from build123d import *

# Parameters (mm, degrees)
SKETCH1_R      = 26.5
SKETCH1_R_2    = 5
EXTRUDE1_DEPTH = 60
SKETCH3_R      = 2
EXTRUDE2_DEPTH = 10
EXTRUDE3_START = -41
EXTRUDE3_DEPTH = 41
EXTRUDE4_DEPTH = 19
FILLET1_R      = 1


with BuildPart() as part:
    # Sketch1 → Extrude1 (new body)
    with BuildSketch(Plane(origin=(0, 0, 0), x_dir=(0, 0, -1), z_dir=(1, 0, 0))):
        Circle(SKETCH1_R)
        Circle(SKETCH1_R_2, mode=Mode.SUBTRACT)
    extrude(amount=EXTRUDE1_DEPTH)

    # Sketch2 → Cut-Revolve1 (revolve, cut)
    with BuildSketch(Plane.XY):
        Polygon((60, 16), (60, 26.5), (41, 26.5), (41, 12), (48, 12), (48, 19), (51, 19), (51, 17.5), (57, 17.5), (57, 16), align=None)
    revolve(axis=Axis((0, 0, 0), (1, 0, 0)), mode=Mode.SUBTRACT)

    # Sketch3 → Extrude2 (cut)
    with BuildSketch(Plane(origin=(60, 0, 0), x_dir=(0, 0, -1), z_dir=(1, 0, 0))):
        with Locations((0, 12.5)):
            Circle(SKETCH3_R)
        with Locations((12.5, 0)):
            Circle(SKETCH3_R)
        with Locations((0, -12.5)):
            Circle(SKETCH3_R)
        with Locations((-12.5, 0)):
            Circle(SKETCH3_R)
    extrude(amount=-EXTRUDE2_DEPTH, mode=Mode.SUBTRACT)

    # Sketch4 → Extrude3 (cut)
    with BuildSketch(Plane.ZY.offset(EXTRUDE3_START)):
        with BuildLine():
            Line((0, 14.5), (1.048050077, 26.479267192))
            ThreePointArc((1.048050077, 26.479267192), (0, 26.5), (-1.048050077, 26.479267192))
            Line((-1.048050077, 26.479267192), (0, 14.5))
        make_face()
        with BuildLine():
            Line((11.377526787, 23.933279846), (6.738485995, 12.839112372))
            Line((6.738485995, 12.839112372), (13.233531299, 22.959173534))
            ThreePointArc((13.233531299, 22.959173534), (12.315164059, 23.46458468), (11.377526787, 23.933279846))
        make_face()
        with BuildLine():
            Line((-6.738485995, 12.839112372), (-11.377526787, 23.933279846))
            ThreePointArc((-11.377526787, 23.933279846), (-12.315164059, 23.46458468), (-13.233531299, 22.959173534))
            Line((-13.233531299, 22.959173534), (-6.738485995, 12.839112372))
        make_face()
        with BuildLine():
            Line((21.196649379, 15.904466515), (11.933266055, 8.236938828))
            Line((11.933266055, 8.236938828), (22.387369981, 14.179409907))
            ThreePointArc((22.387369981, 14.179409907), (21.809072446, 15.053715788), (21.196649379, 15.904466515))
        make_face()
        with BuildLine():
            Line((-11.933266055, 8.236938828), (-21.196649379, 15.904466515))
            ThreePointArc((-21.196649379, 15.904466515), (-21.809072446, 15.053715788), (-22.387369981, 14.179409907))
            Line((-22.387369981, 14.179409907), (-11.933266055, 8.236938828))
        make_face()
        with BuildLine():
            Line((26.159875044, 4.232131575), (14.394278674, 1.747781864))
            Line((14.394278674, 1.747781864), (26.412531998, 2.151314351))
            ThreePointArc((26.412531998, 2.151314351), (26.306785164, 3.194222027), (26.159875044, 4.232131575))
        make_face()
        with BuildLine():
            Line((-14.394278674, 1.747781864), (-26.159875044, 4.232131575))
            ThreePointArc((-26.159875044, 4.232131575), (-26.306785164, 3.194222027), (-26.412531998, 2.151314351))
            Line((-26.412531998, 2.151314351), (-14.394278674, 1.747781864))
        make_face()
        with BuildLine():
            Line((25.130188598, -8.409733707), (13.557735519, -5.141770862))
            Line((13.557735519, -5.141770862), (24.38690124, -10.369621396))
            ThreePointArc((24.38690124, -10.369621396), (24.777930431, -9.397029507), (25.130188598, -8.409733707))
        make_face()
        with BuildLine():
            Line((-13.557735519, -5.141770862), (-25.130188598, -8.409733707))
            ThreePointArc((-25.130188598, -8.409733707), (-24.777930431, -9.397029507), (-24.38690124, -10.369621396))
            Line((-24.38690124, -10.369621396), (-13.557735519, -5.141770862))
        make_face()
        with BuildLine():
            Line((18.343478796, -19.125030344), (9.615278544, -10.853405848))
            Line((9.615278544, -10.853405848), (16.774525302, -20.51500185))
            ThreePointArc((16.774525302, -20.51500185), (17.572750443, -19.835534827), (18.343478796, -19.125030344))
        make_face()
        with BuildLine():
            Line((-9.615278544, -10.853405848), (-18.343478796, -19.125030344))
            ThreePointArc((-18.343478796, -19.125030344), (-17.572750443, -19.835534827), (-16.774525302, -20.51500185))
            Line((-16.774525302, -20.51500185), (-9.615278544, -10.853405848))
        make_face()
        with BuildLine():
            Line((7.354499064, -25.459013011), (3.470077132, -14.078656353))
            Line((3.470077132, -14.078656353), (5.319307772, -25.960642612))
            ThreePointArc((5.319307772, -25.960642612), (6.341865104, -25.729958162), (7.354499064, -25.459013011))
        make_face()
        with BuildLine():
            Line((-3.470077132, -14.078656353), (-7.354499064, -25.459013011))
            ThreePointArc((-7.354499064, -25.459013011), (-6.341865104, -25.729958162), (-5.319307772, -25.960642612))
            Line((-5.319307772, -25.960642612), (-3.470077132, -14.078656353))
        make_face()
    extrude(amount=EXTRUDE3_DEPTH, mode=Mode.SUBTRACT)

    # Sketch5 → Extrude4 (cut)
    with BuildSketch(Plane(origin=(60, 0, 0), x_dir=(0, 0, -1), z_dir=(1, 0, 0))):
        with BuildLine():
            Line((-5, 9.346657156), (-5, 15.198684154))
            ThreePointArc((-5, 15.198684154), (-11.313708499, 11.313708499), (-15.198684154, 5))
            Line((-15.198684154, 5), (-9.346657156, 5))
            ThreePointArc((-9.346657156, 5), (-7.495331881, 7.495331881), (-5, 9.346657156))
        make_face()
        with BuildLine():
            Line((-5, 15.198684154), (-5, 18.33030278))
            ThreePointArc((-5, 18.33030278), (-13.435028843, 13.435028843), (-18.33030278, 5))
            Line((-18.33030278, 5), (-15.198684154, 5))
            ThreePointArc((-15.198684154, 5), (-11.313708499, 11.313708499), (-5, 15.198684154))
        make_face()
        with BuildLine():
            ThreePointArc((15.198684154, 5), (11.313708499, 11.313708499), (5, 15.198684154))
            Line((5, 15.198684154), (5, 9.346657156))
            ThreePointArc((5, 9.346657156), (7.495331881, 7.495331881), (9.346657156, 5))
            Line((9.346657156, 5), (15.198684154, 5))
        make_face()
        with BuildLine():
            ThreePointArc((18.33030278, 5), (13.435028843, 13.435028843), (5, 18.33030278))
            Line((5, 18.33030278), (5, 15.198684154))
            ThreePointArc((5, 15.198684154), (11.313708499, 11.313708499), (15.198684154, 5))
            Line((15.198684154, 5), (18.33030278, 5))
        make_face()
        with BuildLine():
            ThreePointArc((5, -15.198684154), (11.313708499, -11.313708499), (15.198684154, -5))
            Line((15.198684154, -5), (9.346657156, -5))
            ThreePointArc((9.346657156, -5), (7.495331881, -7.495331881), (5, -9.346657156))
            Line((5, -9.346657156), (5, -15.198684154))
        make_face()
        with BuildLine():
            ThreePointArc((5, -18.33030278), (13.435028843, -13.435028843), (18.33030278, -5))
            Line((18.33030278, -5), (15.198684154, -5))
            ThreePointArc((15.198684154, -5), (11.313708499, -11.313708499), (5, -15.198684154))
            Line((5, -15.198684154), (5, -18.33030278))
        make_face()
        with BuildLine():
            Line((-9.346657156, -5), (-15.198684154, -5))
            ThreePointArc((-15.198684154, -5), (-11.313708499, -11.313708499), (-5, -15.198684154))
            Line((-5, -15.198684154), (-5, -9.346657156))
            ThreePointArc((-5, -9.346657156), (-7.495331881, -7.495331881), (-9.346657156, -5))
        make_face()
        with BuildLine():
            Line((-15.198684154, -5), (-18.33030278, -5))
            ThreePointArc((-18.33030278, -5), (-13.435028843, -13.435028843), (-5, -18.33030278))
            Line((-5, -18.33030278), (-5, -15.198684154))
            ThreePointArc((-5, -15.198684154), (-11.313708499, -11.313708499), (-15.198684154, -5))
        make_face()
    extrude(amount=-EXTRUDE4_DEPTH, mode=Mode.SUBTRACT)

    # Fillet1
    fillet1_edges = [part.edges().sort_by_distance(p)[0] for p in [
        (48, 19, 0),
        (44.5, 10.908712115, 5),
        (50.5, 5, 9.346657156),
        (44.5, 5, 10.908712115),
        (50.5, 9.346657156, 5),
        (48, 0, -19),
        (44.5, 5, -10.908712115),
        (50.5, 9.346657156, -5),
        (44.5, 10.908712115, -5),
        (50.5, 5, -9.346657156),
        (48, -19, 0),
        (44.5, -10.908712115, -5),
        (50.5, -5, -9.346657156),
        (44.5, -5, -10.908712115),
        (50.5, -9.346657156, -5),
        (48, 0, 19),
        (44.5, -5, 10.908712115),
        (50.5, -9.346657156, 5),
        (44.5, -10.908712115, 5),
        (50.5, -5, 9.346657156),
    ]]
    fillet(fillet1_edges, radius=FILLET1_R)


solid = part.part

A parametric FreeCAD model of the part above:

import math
import FreeCAD as App
import Part
import Sketcher

V = App.Vector
Q = App.Units.Quantity


def edges_at(feature, points):
    """Names of the edges that pass closest to the given points."""
    edges = feature.Shape.Edges
    near = lambda p: min(range(len(edges)), key=lambda i: edges[i].distToShape(Part.Vertex(*p))[0])
    return sorted({f"Edge{near(p) + 1}" for p in points})

doc = App.newDocument("Part")
params = doc.addObject("Spreadsheet::Sheet", "Params")
for row, (alias, value) in enumerate([
    ("sketch1_diameter", "53 mm"),
    ("sketch1_diameter2", "10 mm"),
    ("pad1_length", "60 mm"),
    ("sketch2_width", "19 mm"),
    ("sketch2_width2", "7 mm"),
    ("sketch2_width3", "3 mm"),
    ("sketch2_height", "10.5 mm"),
    ("sketch2_height2", "14.5 mm"),
    ("groove_angle", "360 deg"),
    ("sketch3_diameter", "4 mm"),
    ("pocket1_length", "10 mm"),
    ("sketch4_radius", "26.5 mm"),
    ("sketch4_radius2", "26.5 mm"),
    ("sketch4_radius3", "26.5 mm"),
    ("sketch4_radius4", "26.5 mm"),
    ("sketch4_radius5", "26.5 mm"),
    ("pocket2_length", "41 mm"),
    ("sketch5_radius", "19 mm"),
    ("sketch5_radius2", "10.6 mm"),
    ("pocket3_length", "19 mm"),
    ("fillet_radius", "1 mm"),
], start=1):
    params.set(f"A{row}", alias)
    params.set(f"B{row}", "=" + value)
    params.setAlias(f"B{row}", alias)

body = doc.addObject("PartDesign::Body", "Body")

sketch1 = body.newObject("Sketcher::SketchObject", "Sketch")
sketch1.AttachmentSupport = (doc.getObject("YZ_Plane"), [""])
sketch1.MapMode = "FlatFace"
sketch1.addGeometry([
    Part.Circle(V(0, 0, 0), V(0, 0, 1), 26.5),
    Part.Circle(V(0, 0, 0), V(0, 0, 1), 5),
], False)
sketch1.addConstraint([
    Sketcher.Constraint("Coincident", 0, 3, -1, 1),
    Sketcher.Constraint("Coincident", 1, 3, -1, 1),
    Sketcher.Constraint("Diameter", 0, Q("53 mm")),
    Sketcher.Constraint("Diameter", 1, Q("10 mm")),
])
sketch1.setExpression("Constraints[2]", "Params.sketch1_diameter")
sketch1.setExpression("Constraints[3]", "Params.sketch1_diameter2")
pad1 = body.newObject("PartDesign::Pad", "Pad")
pad1.Profile = sketch1
pad1.setExpression("Length", "Params.pad1_length")

sketch2 = body.newObject("Sketcher::SketchObject", "Sketch001")
sketch2.AttachmentSupport = (doc.getObject("XY_Plane"), [""])
sketch2.MapMode = "FlatFace"
sketch2.addGeometry([
    Part.LineSegment(V(60, 16, 0), V(60, 26.5, 0)),
    Part.LineSegment(V(60, 26.5, 0), V(41, 26.5, 0)),
    Part.LineSegment(V(41, 26.5, 0), V(41, 12, 0)),
    Part.LineSegment(V(41, 12, 0), V(48, 12, 0)),
    Part.LineSegment(V(48, 12, 0), V(48, 19, 0)),
    Part.LineSegment(V(48, 19, 0), V(51, 19, 0)),
    Part.LineSegment(V(51, 19, 0), V(51, 17.5, 0)),
    Part.LineSegment(V(51, 17.5, 0), V(57, 17.5, 0)),
    Part.LineSegment(V(57, 17.5, 0), V(57, 16, 0)),
    Part.LineSegment(V(57, 16, 0), V(60, 16, 0)),
], False)
sketch2.addConstraint([
    Sketcher.Constraint("Coincident", 0, 2, 1, 1),
    Sketcher.Constraint("Coincident", 1, 2, 2, 1),
    Sketcher.Constraint("Coincident", 2, 2, 3, 1),
    Sketcher.Constraint("Coincident", 3, 2, 4, 1),
    Sketcher.Constraint("Coincident", 4, 2, 5, 1),
    Sketcher.Constraint("Coincident", 5, 2, 6, 1),
    Sketcher.Constraint("Coincident", 6, 2, 7, 1),
    Sketcher.Constraint("Coincident", 7, 2, 8, 1),
    Sketcher.Constraint("Coincident", 8, 2, 9, 1),
    Sketcher.Constraint("Coincident", 9, 2, 0, 1),
    Sketcher.Constraint("Vertical", 0),
    Sketcher.Constraint("Horizontal", 1),
    Sketcher.Constraint("Vertical", 2),
    Sketcher.Constraint("Horizontal", 3),
    Sketcher.Constraint("Vertical", 4),
    Sketcher.Constraint("Horizontal", 5),
    Sketcher.Constraint("Vertical", 6),
    Sketcher.Constraint("Horizontal", 7),
    Sketcher.Constraint("Vertical", 8),
    Sketcher.Constraint("Horizontal", 9),
    Sketcher.Constraint("Equal", 5, 9),
    Sketcher.Constraint("Equal", 3, 4),
    Sketcher.Constraint("Equal", 6, 8),
    Sketcher.Constraint("DistanceX", 1, 2, 1, 1, Q("19 mm")),
    Sketcher.Constraint("DistanceX", 3, 1, 3, 2, Q("7 mm")),
    Sketcher.Constraint("DistanceX", 5, 1, 5, 2, Q("3 mm")),
    Sketcher.Constraint("DistanceY", 0, 1, 0, 2, Q("10.5 mm")),
    Sketcher.Constraint("DistanceY", 2, 2, 2, 1, Q("14.5 mm")),
    Sketcher.Constraint("DistanceX", -1, 1, 0, 2, Q("60 mm")),
    Sketcher.Constraint("DistanceY", -1, 1, 2, 2, Q("12 mm")),
])
sketch2.setExpression("Constraints[23]", "Params.sketch2_width")
sketch2.setExpression("Constraints[24]", "Params.sketch2_width2")
sketch2.setExpression("Constraints[25]", "Params.sketch2_width3")
sketch2.setExpression("Constraints[26]", "Params.sketch2_height")
sketch2.setExpression("Constraints[27]", "Params.sketch2_height2")
groove = body.newObject("PartDesign::Groove", "Groove")
groove.Profile = sketch2
groove.ReferenceAxis = (sketch2, ["H_Axis"])
groove.setExpression("Angle", "Params.groove_angle")

sketch3 = body.newObject("Sketcher::SketchObject", "Sketch002")
sketch3.AttachmentSupport = (doc.getObject("YZ_Plane"), [""])
sketch3.MapMode = "FlatFace"
sketch3.AttachmentOffset = App.Placement(V(0, 0, 60), App.Rotation())
sketch3.addGeometry([
    Part.Circle(V(12.5, 0, 0), V(0, 0, 1), 2),
    Part.Circle(V(0, -12.5, 0), V(0, 0, 1), 2),
    Part.Circle(V(-12.5, 0, 0), V(0, 0, 1), 2),
    Part.Circle(V(0, 12.5, 0), V(0, 0, 1), 2),
], False)
sketch3.addConstraint([
    Sketcher.Constraint("Equal", 0, 1),
    Sketcher.Constraint("Equal", 1, 2),
    Sketcher.Constraint("Equal", 2, 3),
    Sketcher.Constraint("Symmetric", 0, 3, 2, 3, -1, 1),
    Sketcher.Constraint("Symmetric", 1, 3, 3, 3, -1, 1),
    Sketcher.Constraint("PointOnObject", 0, 3, -1),
    Sketcher.Constraint("PointOnObject", 1, 3, -2),
    Sketcher.Constraint("Diameter", 0, Q("4 mm")),
    Sketcher.Constraint("DistanceX", 2, 3, 0, 3, Q("25 mm")),
    Sketcher.Constraint("DistanceY", 1, 3, 3, 3, Q("25 mm")),
])
sketch3.setExpression("Constraints[7]", "Params.sketch3_diameter")
pocket1 = body.newObject("PartDesign::Pocket", "Pocket")
pocket1.Profile = sketch3
pocket1.setExpression("Length", "Params.pocket1_length")

sketch4 = body.newObject("Sketcher::SketchObject", "Sketch003")
sketch4.AttachmentSupport = (doc.getObject("YZ_Plane"), [""])
sketch4.MapMode = "FlatFace"
sketch4.AttachmentOffset = App.Placement(V(0, 0, 41), App.Rotation())
sketch4.addGeometry([
    Part.LineSegment(V(14.5, 0, 0), V(26.479267, 1.04805, 0)),
    Part.ArcOfCircle(Part.Circle(V(0, 0, 0), V(0, 0, 1), 26.5), math.radians(-2.266585), math.radians(2.266585)),
    Part.LineSegment(V(26.479267, -1.04805, 0), V(14.5, 0, 0)),
    Part.LineSegment(V(23.93328, 11.377527, 0), V(12.839112, 6.738486, 0)),
    Part.LineSegment(V(12.839112, 6.738486, 0), V(22.959174, 13.233531, 0)),
    Part.ArcOfCircle(Part.Circle(V(0, 0, 0), V(0, 0, 1), 26.5), math.radians(25.425722), math.radians(29.958893)),
    Part.LineSegment(V(12.839112, -6.738486, 0), V(23.93328, -11.377527, 0)),
    Part.ArcOfCircle(Part.Circle(V(0, 0, 0), V(0, 0, 1), 26.5), math.radians(-29.958893), math.radians(-25.425722)),
    Part.LineSegment(V(22.959174, -13.233531, 0), V(12.839112, -6.738486, 0)),
    Part.LineSegment(V(15.904467, 21.196649, 0), V(8.236939, 11.933266, 0)),
    Part.LineSegment(V(8.236939, 11.933266, 0), V(14.17941, 22.38737, 0)),
    Part.ArcOfCircle(Part.Circle(V(0, 0, 0), V(0, 0, 1), 26.5), math.radians(53.11803), math.radians(57.651201)),
    Part.LineSegment(V(8.236939, -11.933266, 0), V(15.904467, -21.196649, 0)),
    Part.ArcOfCircle(Part.Circle(V(0, 0, 0), V(0, 0, 1), 26.5), math.radians(-57.651201), math.radians(-53.11803)),
    Part.LineSegment(V(14.17941, -22.38737, 0), V(8.236939, -11.933266, 0)),
    Part.LineSegment(V(4.232132, 26.159875, 0), V(1.747782, 14.394279, 0)),
    Part.LineSegment(V(1.747782, 14.394279, 0), V(2.151314, 26.412532, 0)),
    Part.ArcOfCircle(Part.Circle(V(0, 0.000001, 0), V(0, 0, 1), 26.499999), math.radians(80.810338), math.radians(85.343508)),
    Part.LineSegment(V(1.747782, -14.394279, 0), V(4.232132, -26.159875, 0)),
    Part.ArcOfCircle(Part.Circle(V(0, -0.000001, 0), V(0, 0, 1), 26.499999), math.radians(-85.343508), math.radians(-80.810338)),
    Part.LineSegment(V(2.151314, -26.412532, 0), V(1.747782, -14.394279, 0)),
    Part.LineSegment(V(-8.409734, 25.130189, 0), V(-5.141771, 13.557736, 0)),
    Part.LineSegment(V(-5.141771, 13.557736, 0), V(-10.369621, 24.386901, 0)),
    Part.ArcOfCircle(Part.Circle(V(0, 0, 0), V(0, 0, 1), 26.5), math.radians(108.502645), math.radians(113.035816)),
    Part.LineSegment(V(-5.141771, -13.557736, 0), V(-8.409734, -25.130189, 0)),
    Part.ArcOfCircle(Part.Circle(V(0, 0, 0), V(0, 0, 1), 26.5), math.radians(-113.035816), math.radians(-108.502645)),
    Part.LineSegment(V(-10.369621, -24.386901, 0), V(-5.141771, -13.557736, 0)),
    Part.LineSegment(V(-19.12503, 18.343479, 0), V(-10.853406, 9.615279, 0)),
    Part.LineSegment(V(-10.853406, 9.615279, 0), V(-20.515002, 16.774525, 0)),
    Part.ArcOfCircle(Part.Circle(V(0, 0, 0), V(0, 0, 1), 26.5), math.radians(136.194953), math.radians(140.728124)),
    Part.LineSegment(V(-10.853406, -9.615279, 0), V(-19.12503, -18.343479, 0)),
    Part.ArcOfCircle(Part.Circle(V(0, 0, 0), V(0, 0, 1), 26.5), math.radians(-140.728124), math.radians(-136.194953)),
    Part.LineSegment(V(-20.515002, -16.774525, 0), V(-10.853406, -9.615279, 0)),
    Part.LineSegment(V(-25.459013, 7.354499, 0), V(-14.078656, 3.470077, 0)),
    Part.LineSegment(V(-14.078656, 3.470077, 0), V(-25.960643, 5.319308, 0)),
    Part.ArcOfCircle(Part.Circle(V(-0.000001, 0, 0), V(0, 0, 1), 26.499999), math.radians(163.887261), math.radians(168.420432)),
    Part.LineSegment(V(-14.078656, -3.470077, 0), V(-25.459013, -7.354499, 0)),
    Part.ArcOfCircle(Part.Circle(V(-0.000001, 0, 0), V(0, 0, 1), 26.499999), math.radians(-168.420432), math.radians(-163.887261)),
    Part.LineSegment(V(-25.960643, -5.319308, 0), V(-14.078656, -3.470077, 0)),
], False)
sketch4.addConstraint([
    Sketcher.Constraint("Coincident", 0, 2, 1, 2),
    Sketcher.Constraint("Coincident", 1, 1, 2, 1),
    Sketcher.Constraint("Coincident", 2, 2, 0, 1),
    Sketcher.Constraint("Coincident", 3, 2, 4, 1),
    Sketcher.Constraint("Coincident", 4, 2, 5, 2),
    Sketcher.Constraint("Coincident", 5, 1, 3, 1),
    Sketcher.Constraint("Coincident", 6, 2, 7, 2),
    Sketcher.Constraint("Coincident", 7, 1, 8, 1),
    Sketcher.Constraint("Coincident", 8, 2, 6, 1),
    Sketcher.Constraint("Coincident", 9, 2, 10, 1),
    Sketcher.Constraint("Coincident", 10, 2, 11, 2),
    Sketcher.Constraint("Coincident", 11, 1, 9, 1),
    Sketcher.Constraint("Coincident", 12, 2, 13, 2),
    Sketcher.Constraint("Coincident", 13, 1, 14, 1),
    Sketcher.Constraint("Coincident", 14, 2, 12, 1),
    Sketcher.Constraint("Coincident", 15, 2, 16, 1),
    Sketcher.Constraint("Coincident", 16, 2, 17, 2),
    Sketcher.Constraint("Coincident", 17, 1, 15, 1),
    Sketcher.Constraint("Coincident", 18, 2, 19, 2),
    Sketcher.Constraint("Coincident", 19, 1, 20, 1),
    Sketcher.Constraint("Coincident", 20, 2, 18, 1),
    Sketcher.Constraint("Coincident", 21, 2, 22, 1),
    Sketcher.Constraint("Coincident", 22, 2, 23, 2),
    Sketcher.Constraint("Coincident", 23, 1, 21, 1),
    Sketcher.Constraint("Coincident", 24, 2, 25, 2),
    Sketcher.Constraint("Coincident", 25, 1, 26, 1),
    Sketcher.Constraint("Coincident", 26, 2, 24, 1),
    Sketcher.Constraint("Coincident", 27, 2, 28, 1),
    Sketcher.Constraint("Coincident", 28, 2, 29, 2),
    Sketcher.Constraint("Coincident", 29, 1, 27, 1),
    Sketcher.Constraint("Coincident", 30, 2, 31, 2),
    Sketcher.Constraint("Coincident", 31, 1, 32, 1),
    Sketcher.Constraint("Coincident", 32, 2, 30, 1),
    Sketcher.Constraint("Coincident", 33, 2, 34, 1),
    Sketcher.Constraint("Coincident", 34, 2, 35, 2),
    Sketcher.Constraint("Coincident", 35, 1, 33, 1),
    Sketcher.Constraint("Coincident", 36, 2, 37, 2),
    Sketcher.Constraint("Coincident", 37, 1, 38, 1),
    Sketcher.Constraint("Coincident", 38, 2, 36, 1),
    Sketcher.Constraint("Coincident", 1, 3, -1, 1),
    Sketcher.Constraint("Coincident", 5, 3, -1, 1),
    Sketcher.Constraint("Coincident", 7, 3, -1, 1),
    Sketcher.Constraint("Coincident", 11, 3, -1, 1),
    Sketcher.Constraint("Coincident", 13, 3, -1, 1),
    Sketcher.Constraint("Coincident", 17, 3, -1, 1),
    Sketcher.Constraint("Coincident", 19, 3, -1, 1),
    Sketcher.Constraint("Coincident", 23, 3, -1, 1),
    Sketcher.Constraint("Coincident", 25, 3, -1, 1),
    Sketcher.Constraint("Coincident", 29, 3, -1, 1),
    Sketcher.Constraint("Coincident", 31, 3, -1, 1),
    Sketcher.Constraint("Coincident", 35, 3, -1, 1),
    Sketcher.Constraint("Coincident", 37, 3, -1, 1),
    Sketcher.Constraint("PointOnObject", 2, 2, -1),
    Sketcher.Constraint("Radius", 1, Q("26.5 mm")),
    Sketcher.Constraint("Radius", 5, Q("26.5 mm")),
    Sketcher.Constraint("Radius", 7, Q("26.5 mm")),
    Sketcher.Constraint("Radius", 11, Q("26.5 mm")),
    Sketcher.Constraint("Radius", 13, Q("26.5 mm")),
    Sketcher.Constraint("Radius", 17, Q("26.499999 mm")),
    Sketcher.Constraint("Radius", 19, Q("26.499999 mm")),
    Sketcher.Constraint("Radius", 23, Q("26.5 mm")),
    Sketcher.Constraint("Radius", 25, Q("26.5 mm")),
    Sketcher.Constraint("Radius", 29, Q("26.5 mm")),
    Sketcher.Constraint("Radius", 31, Q("26.5 mm")),
    Sketcher.Constraint("Radius", 35, Q("26.499999 mm")),
    Sketcher.Constraint("Radius", 37, Q("26.499999 mm")),
    Sketcher.Constraint("DistanceX", -1, 1, 2, 2, Q("14.5 mm")),
    Sketcher.Constraint("DistanceX", 28, 2, -1, 1, Q("20.515002 mm")),
    Sketcher.Constraint("DistanceX", 31, 1, -1, 1, Q("20.515002 mm")),
    Sketcher.Constraint("DistanceY", 27, 2, 15, 2, Q("4.779 mm")),
    Sketcher.Constraint("DistanceY", 20, 2, 32, 2, Q("4.779 mm")),
    Sketcher.Constraint("DistanceY", 36, 2, 35, 1, Q("14.708998 mm")),
    Sketcher.Constraint("DistanceY", -1, 1, 22, 2, Q("24.386901 mm")),
    Sketcher.Constraint("DistanceY", 25, 1, -1, 1, Q("24.386901 mm")),
    Sketcher.Constraint("DistanceY", -1, 1, 35, 1, Q("7.354499 mm")),
    Sketcher.Constraint("DistanceY", 1, 1, 0, 2, Q("2.0961 mm")),
    Sketcher.Constraint("DistanceX", 12, 2, 1, 1, Q("10.574801 mm")),
    Sketcher.Constraint("DistanceY", 12, 2, 1, 1, Q("20.148599 mm")),
    Sketcher.Constraint("DistanceX", 16, 2, 3, 2, Q("10.687798 mm")),
    Sketcher.Constraint("DistanceX", 19, 1, 8, 2, Q("10.687798 mm")),
    Sketcher.Constraint("DistanceY", 27, 2, 29, 1, Q("8.7282 mm")),
    Sketcher.Constraint("DistanceY", 30, 2, 20, 2, Q("3.9492 mm")),
    Sketcher.Constraint("DistanceY", 33, 2, 27, 2, Q("6.145201 mm")),
    Sketcher.Constraint("DistanceY", 32, 2, 38, 2, Q("6.145201 mm")),
    Sketcher.Constraint("DistanceY", -1, 1, 4, 2, Q("13.233531 mm")),
    Sketcher.Constraint("DistanceX", -1, 1, 5, 1, Q("23.93328 mm")),
    Sketcher.Constraint("DistanceX", -1, 1, 6, 2, Q("23.93328 mm")),
    Sketcher.Constraint("DistanceY", 7, 1, -1, 1, Q("13.233531 mm")),
    Sketcher.Constraint("DistanceX", -1, 1, 9, 2, Q("8.236939 mm")),
    Sketcher.Constraint("DistanceX", -1, 1, 10, 2, Q("14.17941 mm")),
    Sketcher.Constraint("DistanceY", -1, 1, 11, 1, Q("21.196649 mm")),
    Sketcher.Constraint("DistanceX", -1, 1, 13, 1, Q("14.17941 mm")),
    Sketcher.Constraint("DistanceX", -1, 1, 14, 2, Q("8.236939 mm")),
    Sketcher.Constraint("DistanceX", -1, 1, 15, 2, Q("1.747782 mm")),
    Sketcher.Constraint("DistanceY", -1, 1, 15, 2, Q("14.394279 mm")),
    Sketcher.Constraint("DistanceY", -1, 1, 16, 2, Q("26.412532 mm")),
    Sketcher.Constraint("DistanceX", -1, 1, 17, 1, Q("4.232132 mm")),
    Sketcher.Constraint("DistanceX", -1, 1, 18, 2, Q("4.232132 mm")),
    Sketcher.Constraint("DistanceY", 19, 1, -1, 1, Q("26.412532 mm")),
    Sketcher.Constraint("DistanceX", -1, 1, 20, 2, Q("1.747782 mm")),
    Sketcher.Constraint("DistanceY", 20, 2, -1, 1, Q("14.394279 mm")),
    Sketcher.Constraint("DistanceX", 21, 2, -1, 1, Q("5.141771 mm")),
    Sketcher.Constraint("DistanceY", -1, 1, 23, 1, Q("25.130189 mm")),
    Sketcher.Constraint("DistanceY", 24, 2, -1, 1, Q("25.130189 mm")),
    Sketcher.Constraint("DistanceX", 26, 2, -1, 1, Q("5.141771 mm")),
    Sketcher.Constraint("DistanceY", 3, 2, 5, 1, Q("4.639041 mm")),
    Sketcher.Constraint("DistanceY", 6, 2, 8, 2, Q("4.639041 mm")),
    Sketcher.Constraint("DistanceY", 3, 2, 9, 2, Q("5.19478 mm")),
    Sketcher.Constraint("DistanceY", 14, 2, 8, 2, Q("5.19478 mm")),
    Sketcher.Constraint("DistanceY", 9, 2, 21, 2, Q("1.624469 mm")),
    Sketcher.Constraint("DistanceY", 26, 2, 14, 2, Q("1.624469 mm")),
    Sketcher.Constraint("DistanceX", 33, 2, 27, 2, Q("3.225251 mm")),
    Sketcher.Constraint("DistanceX", 33, 2, 32, 2, Q("3.225251 mm")),
    Sketcher.Constraint("DistanceY", 33, 2, 34, 2, Q("1.849231 mm")),
    Sketcher.Constraint("DistanceX", 37, 1, 36, 2, Q("0.50163 mm")),
    Sketcher.Constraint("DistanceX", 38, 2, 32, 2, Q("3.225251 mm")),
    Sketcher.Constraint("Distance", 27, Q("12.025026 mm")),
])
sketch4.setExpression("Constraints[53]", "Params.sketch4_radius")
sketch4.setExpression("Constraints[54]", "Params.sketch4_radius2")
sketch4.setExpression("Constraints[55]", "Params.sketch4_radius3")
sketch4.setExpression("Constraints[56]", "Params.sketch4_radius4")
sketch4.setExpression("Constraints[57]", "Params.sketch4_radius5")
pocket2 = body.newObject("PartDesign::Pocket", "Pocket001")
pocket2.Profile = sketch4
pocket2.setExpression("Length", "Params.pocket2_length")

sketch5 = body.newObject("Sketcher::SketchObject", "Sketch004")
sketch5.AttachmentSupport = (doc.getObject("YZ_Plane"), [""])
sketch5.MapMode = "FlatFace"
sketch5.AttachmentOffset = App.Placement(V(0, 0, 60), App.Rotation())
sketch5.addGeometry([
    Part.LineSegment(V(9.346657, 5, 0), V(18.330303, 5, 0)),
    Part.ArcOfCircle(Part.Circle(V(0, 0, 0), V(0, 0, 1), 19), math.radians(15.257523), math.radians(74.742477)),
    Part.LineSegment(V(5, 18.330303, 0), V(5, 9.346657, 0)),
    Part.ArcOfCircle(Part.Circle(V(0, 0, 0), V(0, 0, 1), 10.6), math.radians(28.144581), math.radians(61.855419)),
    Part.ArcOfCircle(Part.Circle(V(0, 0, 0), V(0, 0, 1), 10.6), math.radians(-61.855419), math.radians(-28.144581)),
    Part.LineSegment(V(5, -9.346657, 0), V(5, -18.330303, 0)),
    Part.ArcOfCircle(Part.Circle(V(0, 0, 0), V(0, 0, 1), 19), math.radians(-74.742477), math.radians(-15.257523)),
    Part.LineSegment(V(18.330303, -5, 0), V(9.346657, -5, 0)),
    Part.ArcOfCircle(Part.Circle(V(0, 0, 0), V(0, 0, 1), 10.6), math.radians(-151.855419), math.radians(-118.144581)),
    Part.LineSegment(V(-9.346657, -5, 0), V(-18.330303, -5, 0)),
    Part.ArcOfCircle(Part.Circle(V(0, 0, 0), V(0, 0, 1), 19), math.radians(-164.742477), math.radians(-105.257523)),
    Part.LineSegment(V(-5, -18.330303, 0), V(-5, -9.346657, 0)),
    Part.LineSegment(V(-5, 9.346657, 0), V(-5, 18.330303, 0)),
    Part.ArcOfCircle(Part.Circle(V(0, 0, 0), V(0, 0, 1), 19), math.radians(105.257523), math.radians(164.742477)),
    Part.LineSegment(V(-18.330303, 5, 0), V(-9.346657, 5, 0)),
    Part.ArcOfCircle(Part.Circle(V(0, 0, 0), V(0, 0, 1), 10.6), math.radians(118.144581), math.radians(151.855419)),
], False)
sketch5.addConstraint([
    Sketcher.Constraint("Coincident", 0, 2, 1, 1),
    Sketcher.Constraint("Coincident", 1, 2, 2, 1),
    Sketcher.Constraint("Coincident", 2, 2, 3, 2),
    Sketcher.Constraint("Coincident", 3, 1, 0, 1),
    Sketcher.Constraint("Coincident", 4, 1, 5, 1),
    Sketcher.Constraint("Coincident", 5, 2, 6, 1),
    Sketcher.Constraint("Coincident", 6, 2, 7, 1),
    Sketcher.Constraint("Coincident", 7, 2, 4, 2),
    Sketcher.Constraint("Coincident", 8, 1, 9, 1),
    Sketcher.Constraint("Coincident", 9, 2, 10, 1),
    Sketcher.Constraint("Coincident", 10, 2, 11, 1),
    Sketcher.Constraint("Coincident", 11, 2, 8, 2),
    Sketcher.Constraint("Coincident", 12, 2, 13, 1),
    Sketcher.Constraint("Coincident", 13, 2, 14, 1),
    Sketcher.Constraint("Coincident", 14, 2, 15, 2),
    Sketcher.Constraint("Coincident", 15, 1, 12, 1),
    Sketcher.Constraint("Horizontal", 0),
    Sketcher.Constraint("Vertical", 2),
    Sketcher.Constraint("Vertical", 5),
    Sketcher.Constraint("Horizontal", 7),
    Sketcher.Constraint("Horizontal", 9),
    Sketcher.Constraint("Vertical", 11),
    Sketcher.Constraint("Vertical", 12),
    Sketcher.Constraint("Horizontal", 14),
    Sketcher.Constraint("Coincident", 1, 3, -1, 1),
    Sketcher.Constraint("Coincident", 3, 3, -1, 1),
    Sketcher.Constraint("Coincident", 4, 3, -1, 1),
    Sketcher.Constraint("Coincident", 6, 3, -1, 1),
    Sketcher.Constraint("Coincident", 8, 3, -1, 1),
    Sketcher.Constraint("Coincident", 10, 3, -1, 1),
    Sketcher.Constraint("Coincident", 13, 3, -1, 1),
    Sketcher.Constraint("Coincident", 15, 3, -1, 1),
    Sketcher.Constraint("Equal", 3, 4),
    Sketcher.Constraint("Equal", 1, 6),
    Sketcher.Constraint("Equal", 4, 8),
    Sketcher.Constraint("Equal", 6, 10),
    Sketcher.Constraint("Equal", 10, 13),
    Sketcher.Constraint("Equal", 8, 15),
    Sketcher.Constraint("Horizontal", 7, 2, 8, 1),
    Sketcher.Constraint("Horizontal", 5, 2, 10, 2),
    Sketcher.Constraint("Horizontal", 1, 2, 12, 2),
    Sketcher.Constraint("Horizontal", 3, 1, 13, 2),
    Sketcher.Constraint("Vertical", 2, 2, 4, 1),
    Sketcher.Constraint("Vertical", 0, 2, 6, 2),
    Sketcher.Constraint("Equal", 14, 2),
    Sketcher.Constraint("Radius", 1, Q("19 mm")),
    Sketcher.Constraint("Radius", 3, Q("10.6 mm")),
    Sketcher.Constraint("DistanceY", -1, 1, 0, 2, Q("5 mm")),
])
sketch5.setExpression("Constraints[45]", "Params.sketch5_radius")
sketch5.setExpression("Constraints[46]", "Params.sketch5_radius2")
pocket3 = body.newObject("PartDesign::Pocket", "Pocket002")
pocket3.Profile = sketch5
pocket3.setExpression("Length", "Params.pocket3_length")
doc.recompute()

fillet = body.newObject("PartDesign::Fillet", "Fillet")
fillet.Base = (pocket3, edges_at(pocket3, [
    (48, 19, 0),
    (44.5, 10.909, 5),
    (50.5, 5, 9.347),
    (44.5, 5, 10.909),
    (50.5, 9.347, 5),
    (48, 0, -19),
    (44.5, 5, -10.909),
    (50.5, 9.347, -5),
    (44.5, 10.909, -5),
    (50.5, 5, -9.347),
    (48, -19, 0),
    (44.5, -10.909, -5),
    (50.5, -5, -9.347),
    (44.5, -5, -10.909),
    (50.5, -9.347, -5),
    (48, 0, 19),
    (44.5, -5, 10.909),
    (50.5, -9.347, 5),
    (44.5, -10.909, 5),
    (50.5, -5, 9.347),
]))
fillet.setExpression("Radius", "Params.fillet_radius")

doc.recompute()
